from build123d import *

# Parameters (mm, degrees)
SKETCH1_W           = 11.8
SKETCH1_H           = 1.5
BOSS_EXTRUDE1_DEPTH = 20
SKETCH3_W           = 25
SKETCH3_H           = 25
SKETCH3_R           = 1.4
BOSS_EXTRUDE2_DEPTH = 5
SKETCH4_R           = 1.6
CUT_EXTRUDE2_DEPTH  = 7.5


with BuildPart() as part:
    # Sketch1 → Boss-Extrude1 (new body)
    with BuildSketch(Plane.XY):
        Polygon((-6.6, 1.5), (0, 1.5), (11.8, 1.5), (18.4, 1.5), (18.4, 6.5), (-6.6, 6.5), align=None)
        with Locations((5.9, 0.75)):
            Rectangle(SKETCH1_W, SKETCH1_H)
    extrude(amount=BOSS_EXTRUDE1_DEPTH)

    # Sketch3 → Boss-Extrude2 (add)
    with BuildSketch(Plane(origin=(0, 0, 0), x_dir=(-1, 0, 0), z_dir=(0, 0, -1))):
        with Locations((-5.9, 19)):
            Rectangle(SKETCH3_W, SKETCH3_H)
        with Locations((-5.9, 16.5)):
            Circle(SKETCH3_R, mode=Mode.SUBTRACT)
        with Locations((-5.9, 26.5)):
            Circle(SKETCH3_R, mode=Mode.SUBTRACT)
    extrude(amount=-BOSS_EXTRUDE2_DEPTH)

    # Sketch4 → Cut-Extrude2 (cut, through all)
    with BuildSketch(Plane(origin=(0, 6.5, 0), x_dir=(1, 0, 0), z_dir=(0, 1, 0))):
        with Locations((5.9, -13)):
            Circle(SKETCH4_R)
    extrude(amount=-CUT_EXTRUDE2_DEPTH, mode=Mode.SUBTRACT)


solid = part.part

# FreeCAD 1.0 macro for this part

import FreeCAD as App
import Part
import Sketcher


def add_polygon(sketch, points):
    """Adds a closed chain of lines whose ends are joined by coincident constraints."""
    first, n = sketch.GeometryCount, len(points)
    for a, b in zip(points, points[1:] + points[:1]):
        sketch.addGeometry(Part.LineSegment(App.Vector(*a, 0), App.Vector(*b, 0)), False)
    for i in range(n):
        sketch.addConstraint(Sketcher.Constraint("Coincident", first + i, 2, first + (i + 1) % n, 1))

doc = App.newDocument("Part")
body = doc.addObject("PartDesign::Body", "Body")

sketch1 = body.newObject("Sketcher::SketchObject", "Sketch")
sketch1.AttachmentSupport = (doc.getObject("XY_Plane"), [""])
sketch1.MapMode = "FlatFace"
add_polygon(sketch1, [(-6.6, 1.5), (0, 1.5), (0, 0), (11.8, 0), (11.8, 1.5), (18.4, 1.5), (18.4, 6.5), (-6.6, 6.5)])
sketch1.addConstraint(Sketcher.Constraint("Horizontal", 0))
sketch1.addConstraint(Sketcher.Constraint("Vertical", 1))
sketch1.addConstraint(Sketcher.Constraint("Horizontal", 2))
sketch1.addConstraint(Sketcher.Constraint("Vertical", 3))
sketch1.addConstraint(Sketcher.Constraint("Horizontal", 4))
sketch1.addConstraint(Sketcher.Constraint("Vertical", 5))
sketch1.addConstraint(Sketcher.Constraint("Horizontal", 6))
sketch1.addConstraint(Sketcher.Constraint("Vertical", 7))
sketch1.addConstraint(Sketcher.Constraint("Coincident", 1, 2, -1, 1))
sketch1.addConstraint(Sketcher.Constraint("Horizontal", 0, 2, 3, 2))
sketch1.addConstraint(Sketcher.Constraint("Equal", 0, 4))
sketch1.addConstraint(Sketcher.Constraint("DistanceX", 6, 2, 6, 1, 25.0))
sketch1.addConstraint(Sketcher.Constraint("DistanceY", 5, 1, 5, 2, 5.0))
sketch1.addConstraint(Sketcher.Constraint("DistanceX", 0, 1, 0, 2, 6.6))
sketch1.addConstraint(Sketcher.Constraint("DistanceY", 1, 2, 1, 1, 1.5))
pad1 = body.newObject("PartDesign::Pad", "Pad")
pad1.Profile = sketch1
pad1.Length = 20

sketch2 = body.newObject("Sketcher::SketchObject", "Sketch001")
sketch2.AttachmentSupport = (doc.getObject("XY_Plane"), [""])
sketch2.MapMode = "FlatFace"
add_polygon(sketch2, [(18.4, 31.5), (18.4, 6.5), (-6.6, 6.5), (-6.6, 31.5)])
sketch2.addGeometry(Part.Circle(App.Vector(5.9, 16.5, 0), App.Vector(0, 0, 1), 1.4), False)
sketch2.addGeometry(Part.Circle(App.Vector(5.9, 26.5, 0), App.Vector(0, 0, 1), 1.4), False)
sketch2.addConstraint(Sketcher.Constraint("Vertical", 0))
sketch2.addConstraint(Sketcher.Constraint("Horizontal", 1))
sketch2.addConstraint(Sketcher.Constraint("Vertical", 2))
sketch2.addConstraint(Sketcher.Constraint("Horizontal", 3))
sketch2.addConstraint(Sketcher.Constraint("Equal", 4, 5))
sketch2.addConstraint(Sketcher.Constraint("Vertical", 4, 3, 5, 3))
sketch2.addConstraint(Sketcher.Constraint("Equal", 3, 0))
sketch2.addConstraint(Sketcher.Constraint("Diameter", 4, 2.8))
sketch2.addConstraint(Sketcher.Constraint("DistanceX", 1, 2, 1, 1, 25.0))
sketch2.addConstraint(Sketcher.Constraint("DistanceY", 4, 3, 5, 3, 10.0))
sketch2.addConstraint(Sketcher.Constraint("DistanceY", 0, 2, 4, 3, 10.0))
sketch2.addConstraint(Sketcher.Constraint("DistanceX", -1, 1, 4, 3, 5.9))
sketch2.addConstraint(Sketcher.Constraint("DistanceY", -1, 1, 4, 3, 16.5))
sketch2.addConstraint(Sketcher.Constraint("DistanceX", -1, 1, 0, 2, 18.4))
pad2 = body.newObject("PartDesign::Pad", "Pad001")
pad2.Profile = sketch2
pad2.Length = 5

sketch3 = body.newObject("Sketcher::SketchObject", "Sketch002")
sketch3.AttachmentSupport = (doc.getObject("XZ_Plane"), [""])
sketch3.MapMode = "FlatFace"
sketch3.AttachmentOffset = App.Placement(App.Vector(0, 0, -6.5), App.Rotation())
sketch3.addGeometry(Part.Circle(App.Vector(5.9, 13, 0), App.Vector(0, 0, 1), 1.6), False)
sketch3.addConstraint(Sketcher.Constraint("Diameter", 0, 3.2))
sketch3.addConstraint(Sketcher.Constraint("DistanceY", -1, 1, 0, 3, 13.0))
sketch3.addConstraint(Sketcher.Constraint("DistanceX", -1, 1, 0, 3, 5.9))
pocket1 = body.newObject("PartDesign::Pocket", "Pocket")
pocket1.Profile = sketch3
pocket1.Type = "ThroughAll"
pocket1.Reversed = True

doc.recompute()
